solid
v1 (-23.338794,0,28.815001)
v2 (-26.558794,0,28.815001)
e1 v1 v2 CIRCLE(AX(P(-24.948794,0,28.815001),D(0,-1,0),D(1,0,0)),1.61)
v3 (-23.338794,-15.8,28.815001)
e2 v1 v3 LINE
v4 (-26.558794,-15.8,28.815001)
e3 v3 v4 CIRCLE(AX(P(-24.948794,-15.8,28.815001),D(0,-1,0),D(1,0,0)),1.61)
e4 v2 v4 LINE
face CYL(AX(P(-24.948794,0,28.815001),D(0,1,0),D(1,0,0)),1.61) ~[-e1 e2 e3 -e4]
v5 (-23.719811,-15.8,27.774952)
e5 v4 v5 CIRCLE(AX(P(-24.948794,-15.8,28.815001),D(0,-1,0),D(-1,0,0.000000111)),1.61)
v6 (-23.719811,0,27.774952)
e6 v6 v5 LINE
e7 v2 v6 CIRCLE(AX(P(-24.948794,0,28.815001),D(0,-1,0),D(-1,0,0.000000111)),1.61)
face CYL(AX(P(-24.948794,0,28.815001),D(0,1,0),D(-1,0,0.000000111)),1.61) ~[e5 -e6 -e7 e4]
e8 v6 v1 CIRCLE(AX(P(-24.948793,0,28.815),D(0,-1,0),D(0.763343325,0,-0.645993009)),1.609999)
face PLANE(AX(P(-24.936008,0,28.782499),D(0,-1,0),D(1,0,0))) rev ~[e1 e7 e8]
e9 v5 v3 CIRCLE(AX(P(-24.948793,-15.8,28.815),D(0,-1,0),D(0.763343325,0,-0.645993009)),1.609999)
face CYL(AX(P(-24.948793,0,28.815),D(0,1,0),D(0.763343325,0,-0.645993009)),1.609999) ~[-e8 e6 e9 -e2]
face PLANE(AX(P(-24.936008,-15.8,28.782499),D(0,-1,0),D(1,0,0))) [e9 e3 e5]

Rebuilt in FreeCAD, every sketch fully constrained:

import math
import FreeCAD as App
import Part
import Sketcher
from FreeCAD import Vector

doc = App.newDocument("Part")
params = doc.addObject("Spreadsheet::Sheet", "Params")
for row, (alias, value) in enumerate([
    ("sketch1_radius", "1.609999 mm"),
    ("pad1_length", "15.8 mm"),
], start=1):
    params.set(f"A{row}", alias)
    params.set(f"B{row}", "=" + value)
    params.setAlias(f"B{row}", alias)

body = doc.addObject("PartDesign::Body", "Body")

# Sketch on XZ plane
sketch1 = body.newObject("Sketcher::SketchObject", "Sketch")
sketch1.AttachmentSupport = (doc.getObject("XZ_Plane"), [""])
sketch1.MapMode = "FlatFace"
sketch1.addGeometry([
    Part.ArcOfCircle(Part.Circle(Vector(-24.9, 28.8, 0), Vector(0, 0, 1), 1.6), math.radians(-40), math.radians(0)),
    Part.ArcOfCircle(Part.Circle(Vector(-24.9, 28.8, 0), Vector(0, 0, 1), 1.6), math.radians(0), math.radians(180)),
    Part.ArcOfCircle(Part.Circle(Vector(-24.9, 28.8, 0), Vector(0, 0, 1), 1.6), math.radians(180), math.radians(320)),
], False)
sketch1.addConstraint([
    Sketcher.Constraint("Tangent", 0, 2, 1, 1),
    Sketcher.Constraint("Tangent", 1, 2, 2, 1),
    Sketcher.Constraint("Tangent", 2, 2, 0, 1),
    Sketcher.Constraint("Horizontal", 2, 3, 0, 2),
    Sketcher.Constraint("Horizontal", 0, 2, 1, 2),
    Sketcher.Constraint("Radius", 0, 1.609999),
    Sketcher.Constraint("DistanceY", -1, 1, 0, 3, 28.815),
    Sketcher.Constraint("DistanceX", 2, 2, -1, 1, 23.719811),
    Sketcher.Constraint("DistanceY", -1, 1, 2, 2, 27.774952),
])
sketch1.setExpression("Constraints[5]", "Params.sketch1_radius")
pad1 = body.newObject("PartDesign::Pad", "Pad")
pad1.Profile = sketch1
pad1.setExpression("Length", "Params.pad1_length")

doc.recompute()
